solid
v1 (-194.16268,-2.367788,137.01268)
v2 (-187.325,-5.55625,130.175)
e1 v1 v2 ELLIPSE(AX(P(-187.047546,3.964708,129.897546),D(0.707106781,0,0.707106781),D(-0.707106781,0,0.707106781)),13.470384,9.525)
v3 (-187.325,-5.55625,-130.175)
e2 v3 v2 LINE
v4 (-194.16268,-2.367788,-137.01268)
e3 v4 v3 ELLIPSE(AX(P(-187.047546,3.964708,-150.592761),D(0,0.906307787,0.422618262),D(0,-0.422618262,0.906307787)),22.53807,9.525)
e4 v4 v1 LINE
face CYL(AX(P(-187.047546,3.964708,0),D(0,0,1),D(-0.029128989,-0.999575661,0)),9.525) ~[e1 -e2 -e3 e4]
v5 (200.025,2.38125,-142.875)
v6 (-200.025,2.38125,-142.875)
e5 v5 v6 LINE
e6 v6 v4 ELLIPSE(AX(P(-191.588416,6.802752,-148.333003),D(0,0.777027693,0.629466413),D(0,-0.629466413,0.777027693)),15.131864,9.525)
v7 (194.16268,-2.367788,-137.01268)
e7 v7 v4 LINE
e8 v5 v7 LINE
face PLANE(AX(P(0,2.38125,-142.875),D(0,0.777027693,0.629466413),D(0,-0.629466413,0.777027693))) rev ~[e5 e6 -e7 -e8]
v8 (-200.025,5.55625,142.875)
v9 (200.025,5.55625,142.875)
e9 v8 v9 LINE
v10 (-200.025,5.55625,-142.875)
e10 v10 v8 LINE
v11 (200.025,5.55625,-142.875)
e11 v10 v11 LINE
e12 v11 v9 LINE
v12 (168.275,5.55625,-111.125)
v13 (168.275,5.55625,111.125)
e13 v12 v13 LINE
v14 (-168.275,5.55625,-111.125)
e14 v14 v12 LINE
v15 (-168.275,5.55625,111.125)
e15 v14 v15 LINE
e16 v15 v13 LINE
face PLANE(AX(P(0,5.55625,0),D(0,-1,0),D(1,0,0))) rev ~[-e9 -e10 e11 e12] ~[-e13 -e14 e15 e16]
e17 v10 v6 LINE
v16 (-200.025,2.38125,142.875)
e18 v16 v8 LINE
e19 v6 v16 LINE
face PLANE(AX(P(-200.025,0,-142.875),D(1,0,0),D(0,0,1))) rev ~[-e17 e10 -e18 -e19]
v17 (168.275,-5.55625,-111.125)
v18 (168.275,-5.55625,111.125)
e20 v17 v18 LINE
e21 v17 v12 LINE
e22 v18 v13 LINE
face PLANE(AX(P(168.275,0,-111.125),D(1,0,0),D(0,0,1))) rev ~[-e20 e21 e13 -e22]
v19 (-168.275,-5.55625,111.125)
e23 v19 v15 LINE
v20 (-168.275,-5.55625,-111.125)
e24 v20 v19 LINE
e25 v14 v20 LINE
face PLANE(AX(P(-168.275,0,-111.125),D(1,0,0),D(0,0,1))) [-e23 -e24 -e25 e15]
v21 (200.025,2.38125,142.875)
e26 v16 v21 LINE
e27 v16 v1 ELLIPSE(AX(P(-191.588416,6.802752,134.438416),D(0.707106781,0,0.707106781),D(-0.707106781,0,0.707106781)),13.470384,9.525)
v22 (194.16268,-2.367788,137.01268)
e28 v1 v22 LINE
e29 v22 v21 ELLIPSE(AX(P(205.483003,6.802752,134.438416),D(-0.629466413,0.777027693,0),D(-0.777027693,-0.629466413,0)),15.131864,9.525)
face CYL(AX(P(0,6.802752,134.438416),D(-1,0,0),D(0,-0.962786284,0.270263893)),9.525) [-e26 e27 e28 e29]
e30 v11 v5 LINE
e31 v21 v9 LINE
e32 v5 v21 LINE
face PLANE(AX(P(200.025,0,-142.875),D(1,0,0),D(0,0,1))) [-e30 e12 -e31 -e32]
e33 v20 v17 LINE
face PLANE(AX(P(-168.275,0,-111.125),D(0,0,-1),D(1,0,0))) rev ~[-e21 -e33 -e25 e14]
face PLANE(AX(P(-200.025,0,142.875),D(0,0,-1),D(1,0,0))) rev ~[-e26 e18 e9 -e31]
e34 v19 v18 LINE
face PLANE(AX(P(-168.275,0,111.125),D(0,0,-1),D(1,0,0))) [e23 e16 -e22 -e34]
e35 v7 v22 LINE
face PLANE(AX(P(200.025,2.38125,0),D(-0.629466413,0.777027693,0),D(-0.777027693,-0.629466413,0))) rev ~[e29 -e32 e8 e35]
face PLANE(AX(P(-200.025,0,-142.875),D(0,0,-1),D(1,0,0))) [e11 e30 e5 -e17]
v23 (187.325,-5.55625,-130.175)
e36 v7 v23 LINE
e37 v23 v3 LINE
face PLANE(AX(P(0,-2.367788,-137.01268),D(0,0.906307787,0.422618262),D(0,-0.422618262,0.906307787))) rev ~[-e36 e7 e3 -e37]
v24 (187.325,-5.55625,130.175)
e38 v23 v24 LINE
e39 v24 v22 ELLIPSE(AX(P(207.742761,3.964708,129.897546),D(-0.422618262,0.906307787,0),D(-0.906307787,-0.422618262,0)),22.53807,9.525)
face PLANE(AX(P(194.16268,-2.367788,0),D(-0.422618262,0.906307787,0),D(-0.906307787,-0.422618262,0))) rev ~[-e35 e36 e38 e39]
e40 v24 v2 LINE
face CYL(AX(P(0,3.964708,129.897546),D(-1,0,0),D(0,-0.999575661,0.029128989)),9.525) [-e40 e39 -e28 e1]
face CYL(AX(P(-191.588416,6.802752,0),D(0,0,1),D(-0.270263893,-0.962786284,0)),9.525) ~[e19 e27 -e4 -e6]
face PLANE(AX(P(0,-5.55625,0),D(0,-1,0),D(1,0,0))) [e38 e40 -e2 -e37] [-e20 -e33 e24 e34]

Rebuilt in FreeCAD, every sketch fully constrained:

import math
import FreeCAD as App
import Part
import Sketcher
Q = App.Units.Quantity


def add_polygon(sketch, points):
    """Adds a closed chain of lines whose ends are joined by coincident constraints."""
    first, n = sketch.GeometryCount, len(points)
    for a, b in zip(points, points[1:] + points[:1]):
        sketch.addGeometry(Part.LineSegment(App.Vector(*a, 0), App.Vector(*b, 0)), False)
    for i in range(n):
        sketch.addConstraint(Sketcher.Constraint("Coincident", first + i, 2, first + (i + 1) % n, 1))

doc = App.newDocument("Part")
body = doc.addObject("PartDesign::Body", "Body")

# Sketch on XZ plane
sketch1 = body.newObject("Sketcher::SketchObject", "Sketch")
sketch1.AttachmentSupport = (doc.getObject("XZ_Plane"), [""])
sketch1.MapMode = "FlatFace"
add_polygon(sketch1, [(-200, 143), (-200, -143), (200, -143), (200, 143)])  # lines 0-3
add_polygon(sketch1, [(168, -111), (-168, -111), (-168, 111), (168, 111)])  # lines 4-7
sketch1.addConstraint([
    Sketcher.Constraint("Vertical", 0),
    Sketcher.Constraint("Horizontal", 1),
    Sketcher.Constraint("Vertical", 2),
    Sketcher.Constraint("Horizontal", 3),
    Sketcher.Constraint("Horizontal", 4),
    Sketcher.Constraint("Vertical", 5),
    Sketcher.Constraint("Horizontal", 6),
    Sketcher.Constraint("Vertical", 7),
    Sketcher.Constraint("Symmetric", 0, 2, 2, 2, -1, 1),
    Sketcher.Constraint("Symmetric", 4, 2, 6, 2, -1, 1),
    Sketcher.Constraint("DistanceY", 4, 2, 3, 2, Q("10 in")),
    Sketcher.Constraint("DistanceX", 1, 1, 1, 2, Q("15.75 in")),
    Sketcher.Constraint("DistanceX", 4, 2, 4, 1, Q("13.25 in")),
    Sketcher.Constraint("DistanceY", 0, 2, 0, 1, Q("11.25 in")),
])
pad1 = body.newObject("PartDesign::Pad", "Pad")
pad1.Profile = sketch1
pad1.Length = Q("0.4375 in")
pad1.Midplane = True

# Sketch on XY plane
sketch2 = body.newObject("Sketcher::SketchObject", "Sketch001")
sketch2.AttachmentSupport = (doc.getObject("XY_Plane"), [""])
sketch2.MapMode = "FlatFace"
sketch2.addGeometry(Part.ArcOfCircle(Part.Circle(App.Vector(-187, 4, 0), App.Vector(0, 0, 1), 10), math.radians(-138), math.radians(-92)), False)  # 0
sketch2.addGeometry(Part.ArcOfCircle(Part.Circle(App.Vector(-192, 7, 0), App.Vector(0, 0, 1), 10), math.radians(-152), math.radians(-106)), False)  # 1
sketch2.addGeometry(Part.LineSegment(App.Vector(-200, 2, 0), App.Vector(-200, -6, 0)), False)  # 2
sketch2.addGeometry(Part.LineSegment(App.Vector(-200, -6, 0), App.Vector(-187, -6, 0)), False)  # 3
add_polygon(sketch2, [(194, -2), (187, -6), (200, -6), (200, 2)])  # lines 4-7
sketch2.addConstraint([
    Sketcher.Constraint("Coincident", 0, 1, 1, 2),
    Sketcher.Constraint("Coincident", 1, 1, 2, 1),
    Sketcher.Constraint("Coincident", 2, 2, 3, 1),
    Sketcher.Constraint("Coincident", 3, 2, 0, 2),
    Sketcher.Constraint("Vertical", 2),
    Sketcher.Constraint("Horizontal", 3),
    Sketcher.Constraint("Horizontal", 5),
    Sketcher.Constraint("Vertical", 6),
    Sketcher.Constraint("Equal", 0, 1),
    Sketcher.Constraint("Symmetric", 3, 2, 4, 2, -2),
    Sketcher.Constraint("Symmetric", 1, 1, 6, 2, -2),
    Sketcher.Constraint("Symmetric", 0, 1, 7, 2, -2),
    Sketcher.Constraint("Equal", 4, 7),
    Sketcher.Constraint("DistanceX", 3, 1, 3, 2, Q("0.5 in")),
    Sketcher.Constraint("Angle", 4, Q("-155 deg")),
    Sketcher.Constraint("Radius", 0, Q("0.375 in")),
    Sketcher.Constraint("DistanceY", 2, 2, 2, 1, Q("0.3125 in")),
    Sketcher.Constraint("DistanceX", 3, 2, 4, 2, Q("14.75 in")),
    Sketcher.Constraint("DistanceY", -1, 1, 1, 1, Q("0.09375 in")),
])
pocket1 = body.newObject("PartDesign::Pocket", "Pocket")
pocket1.Profile = sketch2
pocket1.Type = "ThroughAll"
pocket1.Midplane = True

# Sketch on YZ plane
sketch3 = body.newObject("Sketcher::SketchObject", "Sketch002")
sketch3.AttachmentSupport = (doc.getObject("YZ_Plane"), [""])
sketch3.MapMode = "FlatFace"
sketch3.addGeometry(Part.LineSegment(App.Vector(-6, 143, 0), App.Vector(-6, 130, 0)), False)  # 0
sketch3.addGeometry(Part.ArcOfCircle(Part.Circle(App.Vector(4, 130, 0), App.Vector(0, 0, 1), 10), math.radians(132), math.radians(178)), False)  # 1
sketch3.addGeometry(Part.ArcOfCircle(Part.Circle(App.Vector(7, 134, 0), App.Vector(0, 0, 1), 10), math.radians(118), math.radians(164)), False)  # 2
sketch3.addGeometry(Part.LineSegment(App.Vector(2, 143, 0), App.Vector(-6, 143, 0)), False)  # 3
add_polygon(sketch3, [(-6, -130), (-6, -143), (2, -143), (-2, -137)])  # lines 4-7
sketch3.addConstraint([
    Sketcher.Constraint("Coincident", 0, 2, 1, 2),
    Sketcher.Constraint("Coincident", 1, 1, 2, 2),
    Sketcher.Constraint("Coincident", 2, 1, 3, 1),
    Sketcher.Constraint("Coincident", 3, 2, 0, 1),
    Sketcher.Constraint("Vertical", 0),
    Sketcher.Constraint("Horizontal", 3),
    Sketcher.Constraint("Vertical", 4),
    Sketcher.Constraint("Horizontal", 5),
    Sketcher.Constraint("Equal", 1, 2),
    Sketcher.Constraint("Symmetric", 3, 2, 4, 2, -1),
    Sketcher.Constraint("Symmetric", 1, 1, 6, 2, -1),
    Sketcher.Constraint("Vertical", 2, 1, 5, 2),
    Sketcher.Constraint("Equal", 0, 4),
    Sketcher.Constraint("Equal", 6, 7),
    Sketcher.Constraint("DistanceY", 0, 2, 0, 1, Q("0.5 in")),
    Sketcher.Constraint("Angle", 7, Q("115 deg")),
    Sketcher.Constraint("Radius", 1, Q("0.375 in")),
    Sketcher.Constraint("DistanceX", 3, 2, 3, 1, Q("0.3125 in")),
    Sketcher.Constraint("DistanceY", 4, 2, 0, 2, Q("10.75 in")),
    Sketcher.Constraint("DistanceX", 0, 2, -1, 1, Q("0.21875 in")),
])
pocket2 = body.newObject("PartDesign::Pocket", "Pocket001")
pocket2.Profile = sketch3
pocket2.Type = "ThroughAll"
pocket2.Midplane = True

doc.recompute()
